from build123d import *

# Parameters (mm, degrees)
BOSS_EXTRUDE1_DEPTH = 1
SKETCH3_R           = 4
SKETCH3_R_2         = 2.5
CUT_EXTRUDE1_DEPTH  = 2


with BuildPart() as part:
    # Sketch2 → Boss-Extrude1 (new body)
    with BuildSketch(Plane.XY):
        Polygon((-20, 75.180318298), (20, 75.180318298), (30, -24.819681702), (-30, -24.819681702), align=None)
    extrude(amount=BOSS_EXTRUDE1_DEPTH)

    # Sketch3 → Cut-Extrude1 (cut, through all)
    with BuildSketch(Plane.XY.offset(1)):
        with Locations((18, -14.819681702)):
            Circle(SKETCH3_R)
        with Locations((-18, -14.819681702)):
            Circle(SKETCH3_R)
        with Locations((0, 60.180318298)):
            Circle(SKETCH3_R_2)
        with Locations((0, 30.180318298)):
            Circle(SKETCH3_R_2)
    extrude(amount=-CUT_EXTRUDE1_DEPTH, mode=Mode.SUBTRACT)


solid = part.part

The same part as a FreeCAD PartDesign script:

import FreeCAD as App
import Part
import Sketcher
from FreeCAD import Vector


def add_polygon(sketch, points):
    """Adds a closed chain of lines whose ends are joined by coincident constraints."""
    first, n = sketch.GeometryCount, len(points)
    for a, b in zip(points, points[1:] + points[:1]):
        sketch.addGeometry(Part.LineSegment(App.Vector(*a, 0), App.Vector(*b, 0)), False)
    for i in range(n):
        sketch.addConstraint(Sketcher.Constraint("Coincident", first + i, 2, first + (i + 1) % n, 1))

doc = App.newDocument("Part")
body = doc.addObject("PartDesign::Body", "Body")

# Sketch on XY plane
sketch1 = body.newObject("Sketcher::SketchObject", "Sketch")
sketch1.AttachmentSupport = (doc.getObject("XY_Plane"), [""])
sketch1.MapMode = "FlatFace"
add_polygon(sketch1, [(20, 75), (-20, 75), (-30, -25), (30, -25)])  # lines 0-3
sketch1.addConstraint([
    Sketcher.Constraint("Horizontal", 0),
    Sketcher.Constraint("Horizontal", 2),
    Sketcher.Constraint("Equal", 1, 3),
    Sketcher.Constraint("DistanceX", 0, 2, 0, 1, 40.0),
    Sketcher.Constraint("DistanceX", 2, 1, 2, 2, 60.0),
    Sketcher.Constraint("DistanceX", 0, 2, -1, 1, 20.0),
    Sketcher.Constraint("DistanceY", 1, 2, 0, 2, 100.0),
    Sketcher.Constraint("DistanceY", -1, 1, 0, 2, 75.180318),
])
pad1 = body.newObject("PartDesign::Pad", "Pad")
pad1.Profile = sketch1
pad1.Length = 1

# Sketch on XY plane
sketch2 = body.newObject("Sketcher::SketchObject", "Sketch001")
sketch2.AttachmentSupport = (doc.getObject("XY_Plane"), [""])
sketch2.MapMode = "FlatFace"
sketch2.AttachmentOffset = App.Placement(Vector(0, 0, 1), App.Rotation())
sketch2.addGeometry([
    Part.Circle(Vector(18, -14.8, 0), Vector(0, 0, 1), 4),
    Part.Circle(Vector(-18, -14.8, 0), Vector(0, 0, 1), 4),
    Part.Circle(Vector(0, 60.2, 0), Vector(0, 0, 1), 2.5),
    Part.Circle(Vector(0, 30.2, 0), Vector(0, 0, 1), 2.5),
], False)
sketch2.addConstraint([
    Sketcher.Constraint("Equal", 0, 1),
    Sketcher.Constraint("Equal", 2, 3),
    Sketcher.Constraint("Symmetric", 0, 3, 1, 3, -2),
    Sketcher.Constraint("PointOnObject", 2, 3, -2),
    Sketcher.Constraint("PointOnObject", 3, 3, -2),
    Sketcher.Constraint("Diameter", 0, 8.0),
    Sketcher.Constraint("Diameter", 2, 5.0),
    Sketcher.Constraint("DistanceX", -1, 1, 0, 3, 18.0),
    Sketcher.Constraint("DistanceY", 0, 3, 2, 3, 75.0),
    Sketcher.Constraint("DistanceY", 3, 3, 2, 3, 30.0),
    Sketcher.Constraint("DistanceY", 0, 3, -1, 1, 14.819682),
])
pocket1 = body.newObject("PartDesign::Pocket", "Pocket")
pocket1.Profile = sketch2
pocket1.Type = "ThroughAll"

doc.recompute()
